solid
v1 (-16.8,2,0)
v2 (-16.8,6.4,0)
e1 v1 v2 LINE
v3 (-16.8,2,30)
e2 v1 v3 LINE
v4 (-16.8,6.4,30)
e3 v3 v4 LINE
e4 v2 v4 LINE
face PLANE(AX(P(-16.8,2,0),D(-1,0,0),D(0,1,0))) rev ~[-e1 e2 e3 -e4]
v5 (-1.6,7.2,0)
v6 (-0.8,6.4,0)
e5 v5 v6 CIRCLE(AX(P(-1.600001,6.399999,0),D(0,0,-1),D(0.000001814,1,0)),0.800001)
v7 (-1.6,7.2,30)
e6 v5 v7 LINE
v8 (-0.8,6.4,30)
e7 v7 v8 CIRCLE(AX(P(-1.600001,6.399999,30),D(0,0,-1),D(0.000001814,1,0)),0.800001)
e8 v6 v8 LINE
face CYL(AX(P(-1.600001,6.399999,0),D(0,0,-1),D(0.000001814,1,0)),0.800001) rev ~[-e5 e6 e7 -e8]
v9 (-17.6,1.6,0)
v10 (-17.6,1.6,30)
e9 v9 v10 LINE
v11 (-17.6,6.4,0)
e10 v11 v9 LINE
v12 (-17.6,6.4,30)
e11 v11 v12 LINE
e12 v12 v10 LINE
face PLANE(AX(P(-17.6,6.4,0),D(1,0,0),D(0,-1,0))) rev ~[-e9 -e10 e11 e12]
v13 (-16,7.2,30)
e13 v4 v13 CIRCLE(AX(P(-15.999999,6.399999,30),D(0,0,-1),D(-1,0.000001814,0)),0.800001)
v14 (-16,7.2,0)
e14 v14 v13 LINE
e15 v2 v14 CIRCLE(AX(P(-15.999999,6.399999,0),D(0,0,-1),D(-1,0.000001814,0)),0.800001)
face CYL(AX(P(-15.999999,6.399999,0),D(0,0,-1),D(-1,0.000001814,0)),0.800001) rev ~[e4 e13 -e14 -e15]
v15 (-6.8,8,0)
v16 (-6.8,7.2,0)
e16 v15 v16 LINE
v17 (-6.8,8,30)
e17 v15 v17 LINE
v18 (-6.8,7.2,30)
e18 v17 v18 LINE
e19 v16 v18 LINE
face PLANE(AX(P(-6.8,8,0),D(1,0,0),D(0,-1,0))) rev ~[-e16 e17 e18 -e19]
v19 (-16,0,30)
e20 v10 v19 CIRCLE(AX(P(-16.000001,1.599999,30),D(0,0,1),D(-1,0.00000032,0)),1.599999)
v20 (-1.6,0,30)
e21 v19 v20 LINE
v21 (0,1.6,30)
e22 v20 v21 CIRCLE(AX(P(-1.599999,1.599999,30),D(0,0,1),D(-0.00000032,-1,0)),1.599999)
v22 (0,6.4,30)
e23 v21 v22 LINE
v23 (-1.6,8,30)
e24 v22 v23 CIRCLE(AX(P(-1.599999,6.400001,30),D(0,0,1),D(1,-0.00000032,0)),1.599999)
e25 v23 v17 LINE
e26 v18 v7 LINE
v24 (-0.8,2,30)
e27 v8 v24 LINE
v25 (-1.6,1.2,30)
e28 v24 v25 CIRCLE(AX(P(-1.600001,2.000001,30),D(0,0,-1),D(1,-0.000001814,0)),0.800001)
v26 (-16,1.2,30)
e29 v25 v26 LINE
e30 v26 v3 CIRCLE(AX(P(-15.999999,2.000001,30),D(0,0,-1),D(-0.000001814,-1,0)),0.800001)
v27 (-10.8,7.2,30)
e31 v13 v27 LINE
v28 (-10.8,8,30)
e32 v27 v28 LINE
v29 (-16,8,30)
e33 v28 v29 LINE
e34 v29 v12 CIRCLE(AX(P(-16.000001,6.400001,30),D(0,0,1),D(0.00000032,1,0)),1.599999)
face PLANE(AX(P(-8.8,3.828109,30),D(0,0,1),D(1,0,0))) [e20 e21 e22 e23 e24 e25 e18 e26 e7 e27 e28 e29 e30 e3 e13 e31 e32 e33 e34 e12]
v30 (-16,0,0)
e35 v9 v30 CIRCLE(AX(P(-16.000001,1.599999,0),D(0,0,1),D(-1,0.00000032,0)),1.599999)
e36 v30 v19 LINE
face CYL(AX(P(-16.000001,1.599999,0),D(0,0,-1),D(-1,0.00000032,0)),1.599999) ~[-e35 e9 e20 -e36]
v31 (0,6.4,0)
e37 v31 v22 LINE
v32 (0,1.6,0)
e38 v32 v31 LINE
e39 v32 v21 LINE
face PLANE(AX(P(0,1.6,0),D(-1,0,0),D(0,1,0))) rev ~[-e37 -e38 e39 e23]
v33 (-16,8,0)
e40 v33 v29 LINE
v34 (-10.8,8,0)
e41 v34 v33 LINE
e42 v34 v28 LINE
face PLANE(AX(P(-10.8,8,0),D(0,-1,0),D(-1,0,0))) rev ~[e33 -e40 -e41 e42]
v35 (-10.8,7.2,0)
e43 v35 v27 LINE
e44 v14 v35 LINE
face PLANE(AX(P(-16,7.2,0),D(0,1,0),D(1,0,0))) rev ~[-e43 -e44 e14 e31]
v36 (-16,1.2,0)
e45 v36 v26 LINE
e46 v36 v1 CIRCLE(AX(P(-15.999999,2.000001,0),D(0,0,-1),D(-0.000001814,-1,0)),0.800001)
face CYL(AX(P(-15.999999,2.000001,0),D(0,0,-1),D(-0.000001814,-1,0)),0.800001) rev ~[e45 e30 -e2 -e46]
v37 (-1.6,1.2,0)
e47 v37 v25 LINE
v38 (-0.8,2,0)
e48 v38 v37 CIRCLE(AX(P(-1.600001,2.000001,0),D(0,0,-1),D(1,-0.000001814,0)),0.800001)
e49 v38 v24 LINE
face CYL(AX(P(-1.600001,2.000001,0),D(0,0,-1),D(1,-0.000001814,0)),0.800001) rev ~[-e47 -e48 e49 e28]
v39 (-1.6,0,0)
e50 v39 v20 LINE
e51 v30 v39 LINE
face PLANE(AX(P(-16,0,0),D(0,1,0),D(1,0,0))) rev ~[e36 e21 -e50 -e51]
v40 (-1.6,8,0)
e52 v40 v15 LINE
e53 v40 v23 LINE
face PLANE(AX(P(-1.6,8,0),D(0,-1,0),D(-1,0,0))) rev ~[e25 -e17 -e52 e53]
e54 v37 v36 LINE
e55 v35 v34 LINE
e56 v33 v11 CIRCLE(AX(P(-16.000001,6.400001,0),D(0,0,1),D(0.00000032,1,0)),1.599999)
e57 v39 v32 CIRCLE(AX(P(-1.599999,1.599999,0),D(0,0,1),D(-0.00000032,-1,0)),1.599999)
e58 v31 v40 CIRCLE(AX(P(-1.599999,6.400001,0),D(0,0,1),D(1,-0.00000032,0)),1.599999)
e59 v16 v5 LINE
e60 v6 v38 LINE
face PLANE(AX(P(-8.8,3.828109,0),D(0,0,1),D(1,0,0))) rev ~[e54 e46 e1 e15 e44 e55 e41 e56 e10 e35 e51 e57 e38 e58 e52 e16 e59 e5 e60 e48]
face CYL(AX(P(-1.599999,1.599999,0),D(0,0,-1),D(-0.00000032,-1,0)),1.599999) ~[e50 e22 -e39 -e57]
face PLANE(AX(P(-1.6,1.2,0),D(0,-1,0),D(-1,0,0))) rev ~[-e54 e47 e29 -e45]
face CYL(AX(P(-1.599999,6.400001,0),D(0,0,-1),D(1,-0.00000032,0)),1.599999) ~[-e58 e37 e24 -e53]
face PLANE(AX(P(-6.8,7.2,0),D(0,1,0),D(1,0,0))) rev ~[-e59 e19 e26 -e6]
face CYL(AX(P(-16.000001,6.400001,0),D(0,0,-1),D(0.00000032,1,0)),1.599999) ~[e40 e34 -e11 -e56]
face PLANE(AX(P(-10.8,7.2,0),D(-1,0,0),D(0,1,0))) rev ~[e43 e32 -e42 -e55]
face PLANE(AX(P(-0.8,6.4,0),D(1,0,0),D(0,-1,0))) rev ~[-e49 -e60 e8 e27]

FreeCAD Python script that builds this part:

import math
import FreeCAD as App
import Part
import Sketcher
Q = App.Units.Quantity

doc = App.newDocument("Part")
params = doc.addObject("Spreadsheet::Sheet", "Params")
for row, (alias, value) in enumerate([
    ("sketch1_radius", "1.599999 mm"),
    ("sketch1_radius2", "0.800001 mm"),
    ("sketch1_width", "14.4 mm"),
    ("sketch1_width2", "5.2 mm"),
    ("sketch1_height", "4.8 mm"),
    ("pad1_length", "30 mm"),
], start=1):
    params.set(f"A{row}", alias)
    params.set(f"B{row}", "=" + value)
    params.setAlias(f"B{row}", alias)

body = doc.addObject("PartDesign::Body", "Body")

# Sketch on XY plane
sketch1 = doc.addObject("Sketcher::SketchObject", "Sketch")
body.addObject(sketch1)
sketch1.AttachmentSupport = (doc.XY_Plane, [""])
sketch1.MapMode = "FlatFace"
sketch1.addGeometry([
    Part.LineSegment(App.Vector(-17.6, 6.4, 0), App.Vector(-17.6, 1.6, 0)),  # 0
    Part.ArcOfCircle(Part.Circle(App.Vector(-16, 1.6, 0), App.Vector(0, 0, 1), 1.6), math.radians(180), math.radians(270)),  # 1
    Part.LineSegment(App.Vector(-16, 0, 0), App.Vector(-1.6, 0, 0)),  # 2
    Part.ArcOfCircle(Part.Circle(App.Vector(-1.6, 1.6, 0), App.Vector(0, 0, 1), 1.6), math.radians(-90), math.radians(0)),  # 3
    Part.LineSegment(App.Vector(0, 1.6, 0), App.Vector(0, 6.4, 0)),  # 4
    Part.ArcOfCircle(Part.Circle(App.Vector(-1.6, 6.4, 0), App.Vector(0, 0, 1), 1.6), math.radians(0), math.radians(90)),  # 5
    Part.LineSegment(App.Vector(-1.6, 8, 0), App.Vector(-6.8, 8, 0)),  # 6
    Part.LineSegment(App.Vector(-6.8, 8, 0), App.Vector(-6.8, 7.2, 0)),  # 7
    Part.LineSegment(App.Vector(-6.8, 7.2, 0), App.Vector(-1.6, 7.2, 0)),  # 8
    Part.ArcOfCircle(Part.Circle(App.Vector(-1.6, 6.4, 0), App.Vector(0, 0, 1), 0.8), math.radians(0), math.radians(90)),  # 9
    Part.LineSegment(App.Vector(-0.8, 6.4, 0), App.Vector(-0.8, 2, 0)),  # 10
    Part.ArcOfCircle(Part.Circle(App.Vector(-1.6, 2, 0), App.Vector(0, 0, 1), 0.8), math.radians(-90), math.radians(0)),  # 11
    Part.LineSegment(App.Vector(-1.6, 1.2, 0), App.Vector(-16, 1.2, 0)),  # 12
    Part.ArcOfCircle(Part.Circle(App.Vector(-16, 2, 0), App.Vector(0, 0, 1), 0.8), math.radians(-180), math.radians(-90)),  # 13
    Part.LineSegment(App.Vector(-16.8, 2, 0), App.Vector(-16.8, 6.4, 0)),  # 14
    Part.ArcOfCircle(Part.Circle(App.Vector(-16, 6.4, 0), App.Vector(0, 0, 1), 0.8), math.radians(90), math.radians(180)),  # 15
    Part.LineSegment(App.Vector(-16, 7.2, 0), App.Vector(-10.8, 7.2, 0)),  # 16
    Part.LineSegment(App.Vector(-10.8, 7.2, 0), App.Vector(-10.8, 8, 0)),  # 17
    Part.LineSegment(App.Vector(-10.8, 8, 0), App.Vector(-16, 8, 0)),  # 18
    Part.ArcOfCircle(Part.Circle(App.Vector(-16, 6.4, 0), App.Vector(0, 0, 1), 1.6), math.radians(90), math.radians(180)),  # 19
], False)
sketch1.addConstraint([
    Sketcher.Constraint("Tangent", 0, 2, 1, 1),
    Sketcher.Constraint("Tangent", 1, 2, 2, 1),
    Sketcher.Constraint("Tangent", 2, 2, 3, 1),
    Sketcher.Constraint("Tangent", 3, 2, 4, 1),
    Sketcher.Constraint("Tangent", 4, 2, 5, 1),
    Sketcher.Constraint("Tangent", 5, 2, 6, 1),
    Sketcher.Constraint("Coincident", 6, 2, 7, 1),
    Sketcher.Constraint("Coincident", 7, 2, 8, 1),
    Sketcher.Constraint("Tangent", 8, 2, 9, 2),
    Sketcher.Constraint("Tangent", 9, 1, 10, 1),
    Sketcher.Constraint("Tangent", 10, 2, 11, 2),
    Sketcher.Constraint("Tangent", 11, 1, 12, 1),
    Sketcher.Constraint("Tangent", 12, 2, 13, 2),
    Sketcher.Constraint("Tangent", 13, 1, 14, 1),
    Sketcher.Constraint("Tangent", 14, 2, 15, 2),
    Sketcher.Constraint("Tangent", 15, 1, 16, 1),
    Sketcher.Constraint("Coincident", 16, 2, 17, 1),
    Sketcher.Constraint("Coincident", 17, 2, 18, 1),
    Sketcher.Constraint("Tangent", 18, 2, 19, 1),
    Sketcher.Constraint("Tangent", 19, 2, 0, 1),
    Sketcher.Constraint("Vertical", 0),
    Sketcher.Constraint("Horizontal", 2),
    Sketcher.Constraint("Vertical", 4),
    Sketcher.Constraint("Horizontal", 6),
    Sketcher.Constraint("Vertical", 7),
    Sketcher.Constraint("Horizontal", 8),
    Sketcher.Constraint("Vertical", 10),
    Sketcher.Constraint("Horizontal", 12),
    Sketcher.Constraint("Vertical", 14),
    Sketcher.Constraint("Horizontal", 16),
    Sketcher.Constraint("Vertical", 17),
    Sketcher.Constraint("Horizontal", 18),
    Sketcher.Constraint("Coincident", 9, 3, 5, 3),
    Sketcher.Constraint("Coincident", 19, 3, 15, 3),
    Sketcher.Constraint("Equal", 1, 3),
    Sketcher.Constraint("Equal", 3, 5),
    Sketcher.Constraint("Equal", 9, 11),
    Sketcher.Constraint("Equal", 11, 13),
    Sketcher.Constraint("Equal", 13, 15),
    Sketcher.Constraint("Equal", 5, 19),
    Sketcher.Constraint("PointOnObject", 1, 2, -1),
    Sketcher.Constraint("PointOnObject", 3, 2, -2),
    Sketcher.Constraint("Horizontal", 9, 3, 15, 3),
    Sketcher.Constraint("Equal", 8, 16),
    Sketcher.Constraint("Radius", 1, Q("1.599999 mm")),
    Sketcher.Constraint("Radius", 9, Q("0.800001 mm")),
    Sketcher.Constraint("DistanceX", 2, 1, 2, 2, Q("14.4 mm")),
    Sketcher.Constraint("DistanceX", 6, 2, 6, 1, Q("5.2 mm")),
    Sketcher.Constraint("DistanceY", 0, 2, 0, 1, Q("4.8 mm")),
    Sketcher.Constraint("DistanceY", 10, 2, 10, 1, Q("4.4 mm")),
])
sketch1.setExpression("Constraints[44]", "Params.sketch1_radius")
sketch1.setExpression("Constraints[45]", "Params.sketch1_radius2")
sketch1.setExpression("Constraints[46]", "Params.sketch1_width")
sketch1.setExpression("Constraints[47]", "Params.sketch1_width2")
sketch1.setExpression("Constraints[48]", "Params.sketch1_height")
pad1 = doc.addObject("PartDesign::Pad", "Pad")
body.addObject(pad1)
pad1.Profile = sketch1
pad1.setExpression("Length", "Params.pad1_length")

doc.recompute()
